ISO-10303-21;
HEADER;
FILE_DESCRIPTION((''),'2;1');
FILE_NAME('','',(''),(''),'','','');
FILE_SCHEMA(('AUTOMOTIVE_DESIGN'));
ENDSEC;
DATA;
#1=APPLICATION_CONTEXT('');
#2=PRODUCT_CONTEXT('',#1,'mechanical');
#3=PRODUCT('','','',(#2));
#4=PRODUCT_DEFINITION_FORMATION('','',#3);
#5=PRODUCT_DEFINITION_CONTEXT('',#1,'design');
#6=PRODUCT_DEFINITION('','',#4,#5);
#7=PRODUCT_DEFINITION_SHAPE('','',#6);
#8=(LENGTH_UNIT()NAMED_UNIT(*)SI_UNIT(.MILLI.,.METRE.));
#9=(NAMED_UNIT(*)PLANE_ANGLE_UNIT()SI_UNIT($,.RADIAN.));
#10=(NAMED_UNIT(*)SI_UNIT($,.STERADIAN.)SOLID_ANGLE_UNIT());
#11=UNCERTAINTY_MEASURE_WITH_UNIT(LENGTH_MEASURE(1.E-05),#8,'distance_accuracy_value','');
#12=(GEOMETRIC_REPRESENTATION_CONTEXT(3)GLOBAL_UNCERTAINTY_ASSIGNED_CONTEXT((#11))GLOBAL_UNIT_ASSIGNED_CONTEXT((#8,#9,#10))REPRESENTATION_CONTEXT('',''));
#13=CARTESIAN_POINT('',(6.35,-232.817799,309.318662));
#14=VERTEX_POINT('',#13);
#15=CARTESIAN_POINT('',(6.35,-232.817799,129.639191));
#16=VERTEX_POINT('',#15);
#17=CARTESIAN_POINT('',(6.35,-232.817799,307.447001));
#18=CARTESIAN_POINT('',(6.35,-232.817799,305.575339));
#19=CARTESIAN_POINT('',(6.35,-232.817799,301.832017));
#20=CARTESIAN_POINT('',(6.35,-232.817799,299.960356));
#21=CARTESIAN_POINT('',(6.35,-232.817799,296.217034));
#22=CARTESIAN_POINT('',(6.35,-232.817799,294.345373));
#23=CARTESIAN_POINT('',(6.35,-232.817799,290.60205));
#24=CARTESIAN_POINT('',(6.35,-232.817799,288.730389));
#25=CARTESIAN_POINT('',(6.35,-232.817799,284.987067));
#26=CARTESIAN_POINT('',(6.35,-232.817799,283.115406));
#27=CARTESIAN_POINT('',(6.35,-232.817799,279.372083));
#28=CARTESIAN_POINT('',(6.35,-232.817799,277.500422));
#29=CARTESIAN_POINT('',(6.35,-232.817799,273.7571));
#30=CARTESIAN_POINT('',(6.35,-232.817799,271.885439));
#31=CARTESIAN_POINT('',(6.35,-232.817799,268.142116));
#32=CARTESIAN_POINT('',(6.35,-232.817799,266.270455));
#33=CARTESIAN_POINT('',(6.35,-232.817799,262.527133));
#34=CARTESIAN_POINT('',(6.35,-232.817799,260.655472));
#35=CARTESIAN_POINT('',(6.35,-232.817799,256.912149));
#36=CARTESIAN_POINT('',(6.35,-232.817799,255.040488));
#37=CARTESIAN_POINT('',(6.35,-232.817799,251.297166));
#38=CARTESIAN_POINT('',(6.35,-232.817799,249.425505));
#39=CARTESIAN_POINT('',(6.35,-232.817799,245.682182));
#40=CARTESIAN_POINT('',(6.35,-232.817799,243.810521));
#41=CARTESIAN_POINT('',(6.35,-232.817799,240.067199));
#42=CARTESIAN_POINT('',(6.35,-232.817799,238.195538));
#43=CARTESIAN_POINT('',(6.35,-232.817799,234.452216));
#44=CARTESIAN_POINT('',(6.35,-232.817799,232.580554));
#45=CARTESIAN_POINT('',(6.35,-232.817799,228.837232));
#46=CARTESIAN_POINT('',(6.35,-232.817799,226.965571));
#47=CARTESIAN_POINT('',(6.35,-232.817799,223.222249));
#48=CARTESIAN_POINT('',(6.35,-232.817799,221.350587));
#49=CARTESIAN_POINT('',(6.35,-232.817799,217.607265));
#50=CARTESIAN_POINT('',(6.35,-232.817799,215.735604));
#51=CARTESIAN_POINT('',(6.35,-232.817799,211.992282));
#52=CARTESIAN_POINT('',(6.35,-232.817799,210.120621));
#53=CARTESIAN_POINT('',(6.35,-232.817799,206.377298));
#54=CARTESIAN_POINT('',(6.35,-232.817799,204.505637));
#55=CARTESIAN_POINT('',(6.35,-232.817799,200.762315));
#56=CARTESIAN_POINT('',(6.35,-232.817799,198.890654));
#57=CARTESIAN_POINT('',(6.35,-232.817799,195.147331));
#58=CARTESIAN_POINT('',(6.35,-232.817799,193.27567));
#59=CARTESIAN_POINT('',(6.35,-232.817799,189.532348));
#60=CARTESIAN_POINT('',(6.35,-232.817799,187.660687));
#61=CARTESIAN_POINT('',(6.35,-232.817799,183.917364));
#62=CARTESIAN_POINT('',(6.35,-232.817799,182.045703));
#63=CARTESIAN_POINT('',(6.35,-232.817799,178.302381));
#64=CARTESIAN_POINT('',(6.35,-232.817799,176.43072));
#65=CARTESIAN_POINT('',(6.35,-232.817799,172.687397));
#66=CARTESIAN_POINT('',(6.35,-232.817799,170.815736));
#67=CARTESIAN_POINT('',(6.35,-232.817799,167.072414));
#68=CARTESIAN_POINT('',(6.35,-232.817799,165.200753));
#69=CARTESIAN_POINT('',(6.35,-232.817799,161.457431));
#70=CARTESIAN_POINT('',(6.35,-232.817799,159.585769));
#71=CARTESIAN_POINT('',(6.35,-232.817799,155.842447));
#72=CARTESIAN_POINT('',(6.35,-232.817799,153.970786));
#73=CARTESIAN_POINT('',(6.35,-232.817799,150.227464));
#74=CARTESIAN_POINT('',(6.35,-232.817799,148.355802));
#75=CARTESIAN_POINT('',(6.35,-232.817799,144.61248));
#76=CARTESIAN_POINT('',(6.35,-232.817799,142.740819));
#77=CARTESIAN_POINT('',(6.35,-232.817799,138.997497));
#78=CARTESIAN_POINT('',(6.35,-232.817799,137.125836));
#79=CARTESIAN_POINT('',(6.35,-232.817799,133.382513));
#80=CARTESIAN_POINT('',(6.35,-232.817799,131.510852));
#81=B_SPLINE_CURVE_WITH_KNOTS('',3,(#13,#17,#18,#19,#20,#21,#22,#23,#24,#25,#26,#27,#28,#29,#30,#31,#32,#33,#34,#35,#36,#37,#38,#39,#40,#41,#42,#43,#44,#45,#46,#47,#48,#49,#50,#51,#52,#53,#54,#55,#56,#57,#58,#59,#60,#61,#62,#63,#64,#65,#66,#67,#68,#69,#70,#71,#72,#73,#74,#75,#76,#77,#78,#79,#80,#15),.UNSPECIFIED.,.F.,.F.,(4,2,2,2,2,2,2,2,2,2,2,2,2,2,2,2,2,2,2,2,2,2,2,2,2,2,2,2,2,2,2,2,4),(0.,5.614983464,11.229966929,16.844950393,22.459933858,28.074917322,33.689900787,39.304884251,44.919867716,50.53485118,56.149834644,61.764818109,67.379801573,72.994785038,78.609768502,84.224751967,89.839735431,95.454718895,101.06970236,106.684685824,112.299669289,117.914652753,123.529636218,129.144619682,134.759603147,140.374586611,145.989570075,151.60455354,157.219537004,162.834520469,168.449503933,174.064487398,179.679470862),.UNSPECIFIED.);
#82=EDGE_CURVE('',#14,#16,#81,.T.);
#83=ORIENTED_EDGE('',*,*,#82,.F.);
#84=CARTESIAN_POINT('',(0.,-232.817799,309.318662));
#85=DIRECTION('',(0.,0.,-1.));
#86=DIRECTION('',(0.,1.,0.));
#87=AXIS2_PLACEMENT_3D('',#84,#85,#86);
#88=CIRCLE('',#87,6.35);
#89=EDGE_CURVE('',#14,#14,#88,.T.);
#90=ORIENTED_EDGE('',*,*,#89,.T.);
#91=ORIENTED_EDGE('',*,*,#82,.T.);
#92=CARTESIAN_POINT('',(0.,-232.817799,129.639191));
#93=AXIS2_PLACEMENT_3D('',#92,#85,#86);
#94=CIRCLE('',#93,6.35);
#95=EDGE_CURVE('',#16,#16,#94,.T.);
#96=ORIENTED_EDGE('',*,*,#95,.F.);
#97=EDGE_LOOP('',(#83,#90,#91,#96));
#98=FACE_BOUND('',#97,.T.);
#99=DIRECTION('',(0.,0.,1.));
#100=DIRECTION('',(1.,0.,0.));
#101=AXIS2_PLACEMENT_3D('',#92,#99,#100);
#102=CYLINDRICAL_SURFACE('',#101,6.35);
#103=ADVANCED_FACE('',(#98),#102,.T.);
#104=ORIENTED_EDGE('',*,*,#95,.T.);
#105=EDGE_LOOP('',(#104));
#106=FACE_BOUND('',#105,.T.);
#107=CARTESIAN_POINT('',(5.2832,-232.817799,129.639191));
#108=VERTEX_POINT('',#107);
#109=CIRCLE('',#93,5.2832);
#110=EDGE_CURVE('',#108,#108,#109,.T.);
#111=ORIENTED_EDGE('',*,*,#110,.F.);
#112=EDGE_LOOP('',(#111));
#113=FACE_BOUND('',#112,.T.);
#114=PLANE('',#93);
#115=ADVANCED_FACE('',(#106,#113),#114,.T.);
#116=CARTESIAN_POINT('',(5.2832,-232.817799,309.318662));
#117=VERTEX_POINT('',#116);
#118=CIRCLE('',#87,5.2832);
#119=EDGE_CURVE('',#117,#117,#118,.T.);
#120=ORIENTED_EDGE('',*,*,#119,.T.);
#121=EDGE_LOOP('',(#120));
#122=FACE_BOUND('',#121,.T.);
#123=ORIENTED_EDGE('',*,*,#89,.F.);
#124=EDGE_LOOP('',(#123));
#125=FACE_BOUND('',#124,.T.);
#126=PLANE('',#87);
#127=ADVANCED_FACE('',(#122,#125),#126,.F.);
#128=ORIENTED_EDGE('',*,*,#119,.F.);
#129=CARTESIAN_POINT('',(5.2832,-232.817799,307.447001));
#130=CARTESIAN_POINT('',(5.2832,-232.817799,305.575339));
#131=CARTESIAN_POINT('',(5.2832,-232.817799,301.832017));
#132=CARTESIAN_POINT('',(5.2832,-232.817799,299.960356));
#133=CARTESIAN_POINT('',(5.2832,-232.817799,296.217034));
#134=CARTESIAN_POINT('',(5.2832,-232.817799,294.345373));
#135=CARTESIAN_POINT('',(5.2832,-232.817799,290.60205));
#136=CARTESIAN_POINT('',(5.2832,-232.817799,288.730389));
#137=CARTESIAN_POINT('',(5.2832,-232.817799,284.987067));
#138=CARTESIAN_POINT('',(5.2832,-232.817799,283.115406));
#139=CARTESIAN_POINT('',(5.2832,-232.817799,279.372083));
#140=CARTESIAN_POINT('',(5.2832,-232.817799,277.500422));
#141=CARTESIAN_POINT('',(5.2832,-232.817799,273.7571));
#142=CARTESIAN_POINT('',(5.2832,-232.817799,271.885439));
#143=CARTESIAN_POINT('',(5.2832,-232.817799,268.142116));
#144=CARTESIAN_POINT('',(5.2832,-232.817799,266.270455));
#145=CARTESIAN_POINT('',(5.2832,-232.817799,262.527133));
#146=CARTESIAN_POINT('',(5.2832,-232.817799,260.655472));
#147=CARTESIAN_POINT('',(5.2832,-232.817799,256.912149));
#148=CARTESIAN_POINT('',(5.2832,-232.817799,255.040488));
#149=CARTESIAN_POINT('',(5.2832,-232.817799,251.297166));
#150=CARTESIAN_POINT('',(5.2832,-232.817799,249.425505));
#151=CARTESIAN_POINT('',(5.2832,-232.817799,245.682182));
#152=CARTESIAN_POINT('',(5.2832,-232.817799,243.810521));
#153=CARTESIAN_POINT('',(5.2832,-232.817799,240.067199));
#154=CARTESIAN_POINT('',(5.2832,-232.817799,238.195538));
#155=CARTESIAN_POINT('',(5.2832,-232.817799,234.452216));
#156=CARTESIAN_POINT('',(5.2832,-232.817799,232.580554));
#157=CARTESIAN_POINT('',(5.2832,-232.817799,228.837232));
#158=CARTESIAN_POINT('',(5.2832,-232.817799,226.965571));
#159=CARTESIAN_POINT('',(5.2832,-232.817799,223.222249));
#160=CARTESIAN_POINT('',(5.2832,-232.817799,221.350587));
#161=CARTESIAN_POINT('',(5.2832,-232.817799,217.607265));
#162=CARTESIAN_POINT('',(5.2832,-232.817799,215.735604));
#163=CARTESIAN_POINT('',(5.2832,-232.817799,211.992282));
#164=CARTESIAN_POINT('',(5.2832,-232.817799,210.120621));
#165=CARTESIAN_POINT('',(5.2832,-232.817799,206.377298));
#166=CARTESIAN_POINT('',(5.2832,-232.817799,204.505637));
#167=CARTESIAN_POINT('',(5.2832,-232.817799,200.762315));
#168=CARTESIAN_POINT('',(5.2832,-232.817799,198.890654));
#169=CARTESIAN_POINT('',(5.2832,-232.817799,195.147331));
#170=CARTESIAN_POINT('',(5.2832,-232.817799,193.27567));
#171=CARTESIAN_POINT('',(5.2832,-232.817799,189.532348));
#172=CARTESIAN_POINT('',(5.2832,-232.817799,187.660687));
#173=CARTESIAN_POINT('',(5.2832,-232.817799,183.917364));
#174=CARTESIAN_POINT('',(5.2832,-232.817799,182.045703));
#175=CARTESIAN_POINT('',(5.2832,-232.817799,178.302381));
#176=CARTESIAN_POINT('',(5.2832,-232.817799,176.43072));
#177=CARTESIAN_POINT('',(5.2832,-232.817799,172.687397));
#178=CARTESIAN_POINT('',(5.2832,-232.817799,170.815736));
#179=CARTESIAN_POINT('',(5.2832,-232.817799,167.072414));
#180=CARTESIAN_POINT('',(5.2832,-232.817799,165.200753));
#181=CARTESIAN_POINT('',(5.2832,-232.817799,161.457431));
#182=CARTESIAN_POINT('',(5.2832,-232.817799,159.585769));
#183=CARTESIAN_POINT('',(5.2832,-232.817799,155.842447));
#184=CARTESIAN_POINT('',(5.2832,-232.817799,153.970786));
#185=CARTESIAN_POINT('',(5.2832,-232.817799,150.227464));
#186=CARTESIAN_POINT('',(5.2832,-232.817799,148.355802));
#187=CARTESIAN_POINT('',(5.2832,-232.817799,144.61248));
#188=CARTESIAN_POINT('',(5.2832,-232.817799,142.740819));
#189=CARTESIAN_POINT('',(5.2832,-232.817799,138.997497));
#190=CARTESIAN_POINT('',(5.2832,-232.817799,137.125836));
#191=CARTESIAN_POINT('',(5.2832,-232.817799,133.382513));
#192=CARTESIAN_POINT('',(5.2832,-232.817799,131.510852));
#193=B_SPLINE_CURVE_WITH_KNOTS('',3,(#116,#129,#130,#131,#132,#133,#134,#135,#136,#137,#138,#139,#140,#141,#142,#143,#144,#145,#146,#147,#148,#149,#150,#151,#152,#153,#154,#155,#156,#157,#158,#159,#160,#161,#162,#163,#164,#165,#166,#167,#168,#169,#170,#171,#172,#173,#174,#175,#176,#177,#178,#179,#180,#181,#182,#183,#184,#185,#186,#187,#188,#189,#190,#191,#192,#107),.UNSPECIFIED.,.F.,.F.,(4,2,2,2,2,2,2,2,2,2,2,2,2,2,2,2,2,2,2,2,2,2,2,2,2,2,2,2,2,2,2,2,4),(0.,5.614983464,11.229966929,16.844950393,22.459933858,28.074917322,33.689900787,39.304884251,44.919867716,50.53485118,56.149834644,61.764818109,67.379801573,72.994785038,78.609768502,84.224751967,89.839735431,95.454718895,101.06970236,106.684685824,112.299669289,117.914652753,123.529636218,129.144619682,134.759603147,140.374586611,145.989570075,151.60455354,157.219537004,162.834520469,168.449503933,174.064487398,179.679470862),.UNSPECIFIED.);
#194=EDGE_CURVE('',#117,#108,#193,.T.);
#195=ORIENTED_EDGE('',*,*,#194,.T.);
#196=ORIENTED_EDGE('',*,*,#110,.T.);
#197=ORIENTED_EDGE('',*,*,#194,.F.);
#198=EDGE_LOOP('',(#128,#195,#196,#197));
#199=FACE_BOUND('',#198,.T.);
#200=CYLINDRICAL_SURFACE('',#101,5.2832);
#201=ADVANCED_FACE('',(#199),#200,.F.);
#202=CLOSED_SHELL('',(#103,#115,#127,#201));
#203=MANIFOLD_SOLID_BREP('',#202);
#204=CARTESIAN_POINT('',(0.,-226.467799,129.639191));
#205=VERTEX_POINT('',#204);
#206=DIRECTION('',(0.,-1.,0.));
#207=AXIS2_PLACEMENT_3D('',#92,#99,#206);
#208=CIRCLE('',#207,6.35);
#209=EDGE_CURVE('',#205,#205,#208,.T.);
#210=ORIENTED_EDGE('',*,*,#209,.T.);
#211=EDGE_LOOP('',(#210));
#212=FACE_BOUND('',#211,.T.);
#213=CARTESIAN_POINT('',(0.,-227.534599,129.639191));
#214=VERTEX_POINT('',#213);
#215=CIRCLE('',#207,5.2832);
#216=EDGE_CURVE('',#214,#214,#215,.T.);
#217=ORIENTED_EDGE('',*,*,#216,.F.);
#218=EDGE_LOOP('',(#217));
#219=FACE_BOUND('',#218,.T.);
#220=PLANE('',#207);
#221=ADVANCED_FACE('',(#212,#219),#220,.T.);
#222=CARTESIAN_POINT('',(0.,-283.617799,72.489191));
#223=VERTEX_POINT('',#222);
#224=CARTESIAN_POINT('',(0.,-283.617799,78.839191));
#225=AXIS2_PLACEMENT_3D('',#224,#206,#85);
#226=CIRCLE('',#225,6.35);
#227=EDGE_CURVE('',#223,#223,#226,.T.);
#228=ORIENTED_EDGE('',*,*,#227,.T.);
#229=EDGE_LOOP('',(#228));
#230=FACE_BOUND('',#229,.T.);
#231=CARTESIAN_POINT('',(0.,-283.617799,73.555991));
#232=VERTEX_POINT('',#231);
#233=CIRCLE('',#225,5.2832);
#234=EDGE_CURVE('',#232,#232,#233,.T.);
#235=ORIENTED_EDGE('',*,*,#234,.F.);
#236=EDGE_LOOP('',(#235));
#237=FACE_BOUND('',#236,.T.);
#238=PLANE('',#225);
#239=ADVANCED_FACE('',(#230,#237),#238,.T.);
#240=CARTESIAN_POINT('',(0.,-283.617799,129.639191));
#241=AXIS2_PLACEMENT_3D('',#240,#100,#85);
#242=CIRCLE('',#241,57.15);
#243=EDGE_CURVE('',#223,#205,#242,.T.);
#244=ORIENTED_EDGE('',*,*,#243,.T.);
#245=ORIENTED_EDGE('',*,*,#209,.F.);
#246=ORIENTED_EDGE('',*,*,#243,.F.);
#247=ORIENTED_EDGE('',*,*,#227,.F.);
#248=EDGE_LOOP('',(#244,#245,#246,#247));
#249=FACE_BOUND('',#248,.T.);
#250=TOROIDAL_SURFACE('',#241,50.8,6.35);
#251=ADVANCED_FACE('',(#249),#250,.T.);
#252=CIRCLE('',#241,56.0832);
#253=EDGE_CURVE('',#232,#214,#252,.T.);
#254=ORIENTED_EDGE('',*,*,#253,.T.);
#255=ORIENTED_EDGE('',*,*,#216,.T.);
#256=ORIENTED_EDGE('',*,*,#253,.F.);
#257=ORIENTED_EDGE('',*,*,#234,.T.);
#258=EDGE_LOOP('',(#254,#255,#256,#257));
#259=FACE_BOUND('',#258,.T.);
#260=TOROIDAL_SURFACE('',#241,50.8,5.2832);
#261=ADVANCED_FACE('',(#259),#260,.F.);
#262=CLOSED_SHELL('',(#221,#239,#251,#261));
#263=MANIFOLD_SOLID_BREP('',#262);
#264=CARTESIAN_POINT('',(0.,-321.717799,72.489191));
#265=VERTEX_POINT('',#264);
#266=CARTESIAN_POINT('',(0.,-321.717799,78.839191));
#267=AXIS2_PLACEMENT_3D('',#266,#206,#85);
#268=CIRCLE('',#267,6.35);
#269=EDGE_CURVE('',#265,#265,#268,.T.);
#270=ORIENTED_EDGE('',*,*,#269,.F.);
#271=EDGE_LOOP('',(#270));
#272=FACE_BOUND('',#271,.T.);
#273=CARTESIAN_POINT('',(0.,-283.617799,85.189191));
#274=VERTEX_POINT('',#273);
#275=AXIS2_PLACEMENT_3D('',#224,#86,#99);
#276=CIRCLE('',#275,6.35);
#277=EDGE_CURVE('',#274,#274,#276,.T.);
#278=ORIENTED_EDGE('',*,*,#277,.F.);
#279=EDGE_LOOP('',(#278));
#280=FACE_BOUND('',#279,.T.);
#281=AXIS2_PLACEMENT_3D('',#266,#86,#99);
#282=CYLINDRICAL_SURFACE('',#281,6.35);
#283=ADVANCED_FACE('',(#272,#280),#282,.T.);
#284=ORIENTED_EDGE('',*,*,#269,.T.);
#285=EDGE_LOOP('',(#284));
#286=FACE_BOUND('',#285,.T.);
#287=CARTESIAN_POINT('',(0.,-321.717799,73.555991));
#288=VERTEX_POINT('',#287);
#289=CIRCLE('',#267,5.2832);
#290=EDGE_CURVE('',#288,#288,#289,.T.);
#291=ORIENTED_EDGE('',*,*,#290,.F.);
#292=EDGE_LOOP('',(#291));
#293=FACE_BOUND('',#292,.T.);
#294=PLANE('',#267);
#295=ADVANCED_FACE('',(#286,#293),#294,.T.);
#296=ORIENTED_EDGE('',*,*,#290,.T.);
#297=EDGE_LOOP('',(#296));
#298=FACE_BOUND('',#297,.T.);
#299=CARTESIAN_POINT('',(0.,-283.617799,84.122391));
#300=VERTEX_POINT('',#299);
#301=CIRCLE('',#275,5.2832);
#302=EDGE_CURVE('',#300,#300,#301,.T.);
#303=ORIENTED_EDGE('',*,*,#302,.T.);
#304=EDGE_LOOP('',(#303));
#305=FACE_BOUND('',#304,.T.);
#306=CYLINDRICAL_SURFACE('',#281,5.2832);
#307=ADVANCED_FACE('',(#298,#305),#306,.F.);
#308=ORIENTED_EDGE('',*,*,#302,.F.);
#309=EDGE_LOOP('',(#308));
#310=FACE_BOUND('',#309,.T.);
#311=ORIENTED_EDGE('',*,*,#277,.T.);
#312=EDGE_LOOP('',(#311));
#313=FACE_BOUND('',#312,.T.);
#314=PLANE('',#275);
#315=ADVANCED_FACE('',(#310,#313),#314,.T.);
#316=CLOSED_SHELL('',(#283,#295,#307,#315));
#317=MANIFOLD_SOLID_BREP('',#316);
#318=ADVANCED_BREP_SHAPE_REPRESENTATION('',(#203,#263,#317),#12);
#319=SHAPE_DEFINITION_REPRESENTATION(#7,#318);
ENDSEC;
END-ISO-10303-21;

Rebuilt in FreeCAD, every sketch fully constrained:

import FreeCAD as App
import Part
import Sketcher
from FreeCAD import Vector
Q = App.Units.Quantity

doc = App.newDocument("Part")
body = doc.addObject("PartDesign::Body", "Body")

# Sketch on XY plane
sketch1 = doc.addObject("Sketcher::SketchObject", "Sketch")
body.addObject(sketch1)
sketch1.AttachmentSupport = (doc.XY_Plane, [""])
sketch1.MapMode = "FlatFace"
sketch1.AttachmentOffset = App.Placement(Vector(0, 0, 129.639191), App.Rotation())
sketch1.addGeometry([
    Part.Circle(Vector(0, -233, 0), Vector(0, 0, 1), 6),
    Part.Circle(Vector(0, -233, 0), Vector(0, 0, 1), 5),
], False)
sketch1.addConstraint([
    Sketcher.Constraint("Coincident", 1, 3, 0, 3),
    Sketcher.Constraint("PointOnObject", 0, 3, -2),
    Sketcher.Constraint("Diameter", 0, Q("0.5 in")),
    Sketcher.Constraint("Diameter", 1, Q("0.416 in")),
    Sketcher.Constraint("DistanceY", 0, 3, -1, 1, 232.817799),
])
pad1 = doc.addObject("PartDesign::Pad", "Pad")
body.addObject(pad1)
pad1.Profile = sketch1
pad1.Length = 179.679471
body2 = doc.addObject("PartDesign::Body", "Body001")

# Sketch on XY plane
sketch2 = doc.addObject("Sketcher::SketchObject", "Sketch001")
body2.addObject(sketch2)
sketch2.AttachmentSupport = (doc.getObject("XY_Plane001"), [""])
sketch2.MapMode = "FlatFace"
sketch2.AttachmentOffset = App.Placement(Vector(0, 0, 129.639191), App.Rotation())
sketch2.addGeometry([
    Part.Circle(Vector(0, -233, 0), Vector(0, 0, 1), 6),
    Part.Circle(Vector(0, -233, 0), Vector(0, 0, 1), 5),
], False)
sketch2.addGeometry(Part.LineSegment(Vector(0, -284, 0), Vector(-10, -284, 0)), True)  # axis
sketch2.addConstraint([
    Sketcher.Constraint("Horizontal", 2),
    Sketcher.Constraint("Coincident", 1, 3, 0, 3),
    Sketcher.Constraint("PointOnObject", 0, 3, -2),
    Sketcher.Constraint("PointOnObject", 2, 1, -2),
    Sketcher.Constraint("Diameter", 0, Q("0.5 in")),
    Sketcher.Constraint("Diameter", 1, Q("0.416 in")),
    Sketcher.Constraint("DistanceY", 2, 1, 0, 3, Q("2 in")),
    Sketcher.Constraint("DistanceX", 2, 2, 2, 1, 10.0),
    Sketcher.Constraint("DistanceY", 0, 3, -1, 1, 232.817799),
])
revolution = doc.addObject("PartDesign::Revolution", "Revolution")
body2.addObject(revolution)
revolution.Profile = sketch2
revolution.ReferenceAxis = (sketch2, ["Axis0"])
revolution.Angle = 90
body3 = doc.addObject("PartDesign::Body", "Body002")

# Sketch on XZ plane
sketch3 = doc.addObject("Sketcher::SketchObject", "Sketch002")
body3.addObject(sketch3)
sketch3.AttachmentSupport = (doc.getObject("XZ_Plane002"), [""])
sketch3.MapMode = "FlatFace"
sketch3.AttachmentOffset = App.Placement(Vector(0, 0, 283.617799), App.Rotation())
sketch3.addGeometry([
    Part.Circle(Vector(0, 79, 0), Vector(0, 0, 1), 6),
    Part.Circle(Vector(0, 79, 0), Vector(0, 0, 1), 5),
], False)
sketch3.addConstraint([
    Sketcher.Constraint("Coincident", 1, 3, 0, 3),
    Sketcher.Constraint("PointOnObject", 0, 3, -2),
    Sketcher.Constraint("Diameter", 0, Q("0.5 in")),
    Sketcher.Constraint("Diameter", 1, Q("0.416 in")),
    Sketcher.Constraint("DistanceY", -1, 1, 0, 3, 78.839191),
])
pad2 = doc.addObject("PartDesign::Pad", "Pad001")
body3.addObject(pad2)
pad2.Profile = sketch3
pad2.Length = Q("1.5 in")

doc.recompute()
